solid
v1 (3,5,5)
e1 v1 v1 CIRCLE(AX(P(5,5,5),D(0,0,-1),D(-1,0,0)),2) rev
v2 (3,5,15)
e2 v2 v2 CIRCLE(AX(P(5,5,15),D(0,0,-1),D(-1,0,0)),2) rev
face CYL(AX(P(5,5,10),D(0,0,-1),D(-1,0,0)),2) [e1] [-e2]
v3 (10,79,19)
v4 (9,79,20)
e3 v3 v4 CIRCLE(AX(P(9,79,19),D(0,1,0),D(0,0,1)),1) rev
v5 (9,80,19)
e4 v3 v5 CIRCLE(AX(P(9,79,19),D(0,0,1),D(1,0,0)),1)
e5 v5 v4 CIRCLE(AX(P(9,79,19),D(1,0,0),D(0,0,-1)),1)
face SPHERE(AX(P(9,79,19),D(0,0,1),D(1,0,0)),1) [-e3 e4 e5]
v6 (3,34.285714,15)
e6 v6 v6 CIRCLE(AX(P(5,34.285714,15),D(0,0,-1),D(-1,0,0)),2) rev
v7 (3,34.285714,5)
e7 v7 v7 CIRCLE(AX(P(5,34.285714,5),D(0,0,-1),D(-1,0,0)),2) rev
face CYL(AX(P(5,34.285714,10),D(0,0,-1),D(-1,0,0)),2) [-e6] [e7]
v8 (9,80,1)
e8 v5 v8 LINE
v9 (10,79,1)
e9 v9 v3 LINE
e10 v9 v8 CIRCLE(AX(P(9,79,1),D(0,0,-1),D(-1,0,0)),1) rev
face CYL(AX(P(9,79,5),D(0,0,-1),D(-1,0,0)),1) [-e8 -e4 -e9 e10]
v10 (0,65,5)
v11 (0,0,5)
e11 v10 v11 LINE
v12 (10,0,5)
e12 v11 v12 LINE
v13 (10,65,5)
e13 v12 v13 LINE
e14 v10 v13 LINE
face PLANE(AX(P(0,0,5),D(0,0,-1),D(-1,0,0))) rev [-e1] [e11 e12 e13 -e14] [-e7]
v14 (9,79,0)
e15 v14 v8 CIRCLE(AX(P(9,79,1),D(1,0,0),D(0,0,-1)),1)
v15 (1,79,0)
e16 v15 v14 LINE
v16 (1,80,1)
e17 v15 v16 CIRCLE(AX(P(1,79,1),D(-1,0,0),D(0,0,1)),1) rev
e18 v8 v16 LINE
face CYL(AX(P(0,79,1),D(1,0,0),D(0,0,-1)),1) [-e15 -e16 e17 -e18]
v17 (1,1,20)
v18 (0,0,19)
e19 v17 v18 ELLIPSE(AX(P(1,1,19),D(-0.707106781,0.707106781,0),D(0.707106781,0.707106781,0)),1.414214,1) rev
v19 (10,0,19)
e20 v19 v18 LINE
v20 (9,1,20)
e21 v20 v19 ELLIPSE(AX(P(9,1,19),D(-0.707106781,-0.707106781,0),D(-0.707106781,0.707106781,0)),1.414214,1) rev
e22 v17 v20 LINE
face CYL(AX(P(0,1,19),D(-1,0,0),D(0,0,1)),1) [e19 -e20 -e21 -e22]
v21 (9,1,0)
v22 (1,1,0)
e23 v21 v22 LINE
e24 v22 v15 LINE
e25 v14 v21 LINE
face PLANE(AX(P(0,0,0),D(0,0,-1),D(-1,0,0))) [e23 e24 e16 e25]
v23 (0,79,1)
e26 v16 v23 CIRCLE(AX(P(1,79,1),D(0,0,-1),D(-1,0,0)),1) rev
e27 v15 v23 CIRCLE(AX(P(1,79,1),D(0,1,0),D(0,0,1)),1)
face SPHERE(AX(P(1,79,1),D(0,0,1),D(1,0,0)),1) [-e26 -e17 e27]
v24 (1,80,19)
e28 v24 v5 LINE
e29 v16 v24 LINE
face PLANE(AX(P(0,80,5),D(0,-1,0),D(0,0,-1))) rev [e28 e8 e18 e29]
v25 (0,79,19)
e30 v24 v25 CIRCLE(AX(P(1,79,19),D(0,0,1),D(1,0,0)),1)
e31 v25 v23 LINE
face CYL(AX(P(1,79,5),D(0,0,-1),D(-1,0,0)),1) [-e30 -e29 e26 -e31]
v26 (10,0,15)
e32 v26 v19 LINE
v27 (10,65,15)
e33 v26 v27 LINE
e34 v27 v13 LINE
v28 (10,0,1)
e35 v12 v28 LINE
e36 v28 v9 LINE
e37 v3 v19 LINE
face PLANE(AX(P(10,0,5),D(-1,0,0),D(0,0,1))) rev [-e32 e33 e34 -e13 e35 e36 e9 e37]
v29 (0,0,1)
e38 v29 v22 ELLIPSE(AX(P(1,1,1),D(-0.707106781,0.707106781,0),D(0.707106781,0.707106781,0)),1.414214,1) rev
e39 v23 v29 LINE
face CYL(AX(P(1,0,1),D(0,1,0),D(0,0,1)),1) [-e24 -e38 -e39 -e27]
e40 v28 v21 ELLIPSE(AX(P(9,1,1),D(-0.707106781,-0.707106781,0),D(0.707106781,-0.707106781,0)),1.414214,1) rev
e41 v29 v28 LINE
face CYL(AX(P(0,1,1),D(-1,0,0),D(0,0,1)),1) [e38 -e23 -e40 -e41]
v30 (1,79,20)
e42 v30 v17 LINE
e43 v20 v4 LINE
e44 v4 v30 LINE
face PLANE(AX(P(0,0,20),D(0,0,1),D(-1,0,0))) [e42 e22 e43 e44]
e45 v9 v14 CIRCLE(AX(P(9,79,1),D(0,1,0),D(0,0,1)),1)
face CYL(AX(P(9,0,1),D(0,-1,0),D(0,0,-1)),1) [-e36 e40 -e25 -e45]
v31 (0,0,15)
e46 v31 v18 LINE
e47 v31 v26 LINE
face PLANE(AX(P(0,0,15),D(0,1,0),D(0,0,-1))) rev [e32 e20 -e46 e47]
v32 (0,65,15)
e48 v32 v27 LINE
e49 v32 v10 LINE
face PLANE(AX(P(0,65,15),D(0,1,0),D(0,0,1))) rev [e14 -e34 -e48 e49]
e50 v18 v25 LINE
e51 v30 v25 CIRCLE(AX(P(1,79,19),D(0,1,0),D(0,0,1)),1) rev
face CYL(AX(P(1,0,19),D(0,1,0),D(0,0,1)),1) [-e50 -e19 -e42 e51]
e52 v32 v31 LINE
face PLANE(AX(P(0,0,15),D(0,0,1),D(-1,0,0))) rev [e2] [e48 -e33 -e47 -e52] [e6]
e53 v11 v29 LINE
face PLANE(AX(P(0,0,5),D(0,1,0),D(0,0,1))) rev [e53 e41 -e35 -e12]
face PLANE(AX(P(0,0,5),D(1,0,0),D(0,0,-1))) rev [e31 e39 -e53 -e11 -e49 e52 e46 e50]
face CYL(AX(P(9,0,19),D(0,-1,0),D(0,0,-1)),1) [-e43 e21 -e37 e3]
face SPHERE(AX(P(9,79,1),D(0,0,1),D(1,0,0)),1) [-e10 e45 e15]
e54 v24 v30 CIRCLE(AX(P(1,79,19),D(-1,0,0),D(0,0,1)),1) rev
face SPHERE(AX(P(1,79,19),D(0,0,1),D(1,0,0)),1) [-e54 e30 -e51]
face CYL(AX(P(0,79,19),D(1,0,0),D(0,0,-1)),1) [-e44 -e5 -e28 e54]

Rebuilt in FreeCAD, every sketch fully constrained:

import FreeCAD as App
import Part
import Sketcher
Q = App.Units.Quantity


def edges_at(feature, points):
    """Names of the edges that pass closest to the given points."""
    edges = feature.Shape.Edges
    near = lambda p: min(range(len(edges)), key=lambda i: edges[i].distToShape(Part.Vertex(*p))[0])
    return sorted({f"Edge{near(p) + 1}" for p in points})


def add_polygon(sketch, points):
    """Adds a closed chain of lines whose ends are joined by coincident constraints."""
    first, n = sketch.GeometryCount, len(points)
    for a, b in zip(points, points[1:] + points[:1]):
        sketch.addGeometry(Part.LineSegment(App.Vector(*a, 0), App.Vector(*b, 0)), False)
    for i in range(n):
        sketch.addConstraint(Sketcher.Constraint("Coincident", first + i, 2, first + (i + 1) % n, 1))

doc = App.newDocument("Part")
params = doc.addObject("Spreadsheet::Sheet", "Params")
for row, (alias, value) in enumerate([
    ("sketch1_width", "10 mm"),
    ("sketch1_height", "80 mm"),
    ("pad1_length", "5 mm"),
    ("sketch2_diameter", "4 mm"),
    ("pad2_length", "5 mm"),
    ("sketch3_width", "10 mm"),
    ("sketch3_height", "15 mm"),
    ("pad3_length", "10 mm"),
    ("fillet_radius", "1 mm"),
], start=1):
    params.set(f"A{row}", alias)
    params.set(f"B{row}", "=" + value)
    params.setAlias(f"B{row}", alias)

body = doc.addObject("PartDesign::Body", "Body")

sketch1 = doc.addObject("Sketcher::SketchObject", "Sketch")
body.addObject(sketch1)
sketch1.AttachmentSupport = (doc.XY_Plane, [""])
sketch1.MapMode = "FlatFace"
add_polygon(sketch1, [(0, 80), (0, 0), (10, 0), (10, 80)])
sketch1.addConstraint([
    Sketcher.Constraint("Vertical", 0),
    Sketcher.Constraint("Horizontal", 1),
    Sketcher.Constraint("Vertical", 2),
    Sketcher.Constraint("Horizontal", 3),
    Sketcher.Constraint("Coincident", 0, 2, -1, 1),
    Sketcher.Constraint("DistanceX", 1, 1, 1, 2, Q("10 mm")),
    Sketcher.Constraint("DistanceY", 0, 2, 0, 1, Q("80 mm")),
])
sketch1.setExpression("Constraints[9]", "Params.sketch1_width")
sketch1.setExpression("Constraints[10]", "Params.sketch1_height")
pad1 = doc.addObject("PartDesign::Pad", "Pad")
body.addObject(pad1)
pad1.Profile = sketch1
pad1.setExpression("Length", "Params.pad1_length")

sketch2 = doc.addObject("Sketcher::SketchObject", "Sketch001")
body.addObject(sketch2)
sketch2.AttachmentSupport = (doc.XY_Plane, [""])
sketch2.MapMode = "FlatFace"
sketch2.AttachmentOffset = App.Placement(App.Vector(0, 0, 5), App.Rotation())
sketch2.addGeometry([
    Part.Circle(App.Vector(5, 5, 0), App.Vector(0, 0, 1), 2),
    Part.Circle(App.Vector(5, 34.3, 0), App.Vector(0, 0, 1), 2),
], False)
sketch2.addConstraint([
    Sketcher.Constraint("Equal", 0, 1),
    Sketcher.Constraint("Vertical", 0, 3, 1, 3),
    Sketcher.Constraint("Diameter", 0, Q("4 mm")),
    Sketcher.Constraint("DistanceX", -1, 1, 0, 3, Q("5 mm")),
    Sketcher.Constraint("DistanceY", -1, 1, 0, 3, Q("5 mm")),
    Sketcher.Constraint("DistanceY", -1, 1, 1, 3, Q("34.285714 mm")),
])
sketch2.setExpression("Constraints[2]", "Params.sketch2_diameter")
pad2 = doc.addObject("PartDesign::Pad", "Pad001")
body.addObject(pad2)
pad2.Profile = sketch2
pad2.setExpression("Length", "Params.pad2_length")
doc.recompute()

datumplane = doc.addObject("PartDesign::Plane", "DatumPlane")
body.addObject(datumplane)
datumplane.AttachmentSupport = (doc.XY_Plane, [""])
datumplane.MapMode = "FlatFace"
datumplane.AttachmentOffset = App.Placement(App.Vector(0, 0, 10), App.Rotation())
mirrored = doc.addObject("PartDesign::Mirrored", "Mirrored")
body.addObject(mirrored)
mirrored.Originals = [pad1, pad2]
mirrored.MirrorPlane = (datumplane, [""])
body.Tip = mirrored

sketch3 = doc.addObject("Sketcher::SketchObject", "Sketch002")
body.addObject(sketch3)
sketch3.AttachmentSupport = (doc.XY_Plane, [""])
sketch3.MapMode = "FlatFace"
sketch3.AttachmentOffset = App.Placement(App.Vector(0, 0, 5), App.Rotation())
add_polygon(sketch3, [(0, 80), (0, 65), (10, 65), (10, 80)])
sketch3.addConstraint([
    Sketcher.Constraint("Vertical", 0),
    Sketcher.Constraint("Horizontal", 1),
    Sketcher.Constraint("Vertical", 2),
    Sketcher.Constraint("Horizontal", 3),
    Sketcher.Constraint("PointOnObject", 0, 2, -2),
    Sketcher.Constraint("DistanceX", 1, 1, 1, 2, Q("10 mm")),
    Sketcher.Constraint("DistanceY", 0, 2, 0, 1, Q("15 mm")),
    Sketcher.Constraint("DistanceY", -1, 1, 0, 2, Q("65 mm")),
])
sketch3.setExpression("Constraints[9]", "Params.sketch3_width")
sketch3.setExpression("Constraints[10]", "Params.sketch3_height")
pad3 = doc.addObject("PartDesign::Pad", "Pad002")
body.addObject(pad3)
pad3.Profile = sketch3
pad3.setExpression("Length", "Params.pad3_length")
doc.recompute()

fillet = doc.addObject("PartDesign::Fillet", "Fillet")
body.addObject(fillet)
fillet.Base = (pad3, edges_at(pad3, [
    (0, 40, 20),
    (5, 0, 20),
    (10, 40, 20),
    (5, 80, 20),
    (5, 80, 0),
    (10, 40, 0),
    (5, 0, 0),
    (0, 40, 0),
    (0, 80, 10),
    (10, 80, 10),
]))
fillet.setExpression("Radius", "Params.fillet_radius")

doc.recompute()
